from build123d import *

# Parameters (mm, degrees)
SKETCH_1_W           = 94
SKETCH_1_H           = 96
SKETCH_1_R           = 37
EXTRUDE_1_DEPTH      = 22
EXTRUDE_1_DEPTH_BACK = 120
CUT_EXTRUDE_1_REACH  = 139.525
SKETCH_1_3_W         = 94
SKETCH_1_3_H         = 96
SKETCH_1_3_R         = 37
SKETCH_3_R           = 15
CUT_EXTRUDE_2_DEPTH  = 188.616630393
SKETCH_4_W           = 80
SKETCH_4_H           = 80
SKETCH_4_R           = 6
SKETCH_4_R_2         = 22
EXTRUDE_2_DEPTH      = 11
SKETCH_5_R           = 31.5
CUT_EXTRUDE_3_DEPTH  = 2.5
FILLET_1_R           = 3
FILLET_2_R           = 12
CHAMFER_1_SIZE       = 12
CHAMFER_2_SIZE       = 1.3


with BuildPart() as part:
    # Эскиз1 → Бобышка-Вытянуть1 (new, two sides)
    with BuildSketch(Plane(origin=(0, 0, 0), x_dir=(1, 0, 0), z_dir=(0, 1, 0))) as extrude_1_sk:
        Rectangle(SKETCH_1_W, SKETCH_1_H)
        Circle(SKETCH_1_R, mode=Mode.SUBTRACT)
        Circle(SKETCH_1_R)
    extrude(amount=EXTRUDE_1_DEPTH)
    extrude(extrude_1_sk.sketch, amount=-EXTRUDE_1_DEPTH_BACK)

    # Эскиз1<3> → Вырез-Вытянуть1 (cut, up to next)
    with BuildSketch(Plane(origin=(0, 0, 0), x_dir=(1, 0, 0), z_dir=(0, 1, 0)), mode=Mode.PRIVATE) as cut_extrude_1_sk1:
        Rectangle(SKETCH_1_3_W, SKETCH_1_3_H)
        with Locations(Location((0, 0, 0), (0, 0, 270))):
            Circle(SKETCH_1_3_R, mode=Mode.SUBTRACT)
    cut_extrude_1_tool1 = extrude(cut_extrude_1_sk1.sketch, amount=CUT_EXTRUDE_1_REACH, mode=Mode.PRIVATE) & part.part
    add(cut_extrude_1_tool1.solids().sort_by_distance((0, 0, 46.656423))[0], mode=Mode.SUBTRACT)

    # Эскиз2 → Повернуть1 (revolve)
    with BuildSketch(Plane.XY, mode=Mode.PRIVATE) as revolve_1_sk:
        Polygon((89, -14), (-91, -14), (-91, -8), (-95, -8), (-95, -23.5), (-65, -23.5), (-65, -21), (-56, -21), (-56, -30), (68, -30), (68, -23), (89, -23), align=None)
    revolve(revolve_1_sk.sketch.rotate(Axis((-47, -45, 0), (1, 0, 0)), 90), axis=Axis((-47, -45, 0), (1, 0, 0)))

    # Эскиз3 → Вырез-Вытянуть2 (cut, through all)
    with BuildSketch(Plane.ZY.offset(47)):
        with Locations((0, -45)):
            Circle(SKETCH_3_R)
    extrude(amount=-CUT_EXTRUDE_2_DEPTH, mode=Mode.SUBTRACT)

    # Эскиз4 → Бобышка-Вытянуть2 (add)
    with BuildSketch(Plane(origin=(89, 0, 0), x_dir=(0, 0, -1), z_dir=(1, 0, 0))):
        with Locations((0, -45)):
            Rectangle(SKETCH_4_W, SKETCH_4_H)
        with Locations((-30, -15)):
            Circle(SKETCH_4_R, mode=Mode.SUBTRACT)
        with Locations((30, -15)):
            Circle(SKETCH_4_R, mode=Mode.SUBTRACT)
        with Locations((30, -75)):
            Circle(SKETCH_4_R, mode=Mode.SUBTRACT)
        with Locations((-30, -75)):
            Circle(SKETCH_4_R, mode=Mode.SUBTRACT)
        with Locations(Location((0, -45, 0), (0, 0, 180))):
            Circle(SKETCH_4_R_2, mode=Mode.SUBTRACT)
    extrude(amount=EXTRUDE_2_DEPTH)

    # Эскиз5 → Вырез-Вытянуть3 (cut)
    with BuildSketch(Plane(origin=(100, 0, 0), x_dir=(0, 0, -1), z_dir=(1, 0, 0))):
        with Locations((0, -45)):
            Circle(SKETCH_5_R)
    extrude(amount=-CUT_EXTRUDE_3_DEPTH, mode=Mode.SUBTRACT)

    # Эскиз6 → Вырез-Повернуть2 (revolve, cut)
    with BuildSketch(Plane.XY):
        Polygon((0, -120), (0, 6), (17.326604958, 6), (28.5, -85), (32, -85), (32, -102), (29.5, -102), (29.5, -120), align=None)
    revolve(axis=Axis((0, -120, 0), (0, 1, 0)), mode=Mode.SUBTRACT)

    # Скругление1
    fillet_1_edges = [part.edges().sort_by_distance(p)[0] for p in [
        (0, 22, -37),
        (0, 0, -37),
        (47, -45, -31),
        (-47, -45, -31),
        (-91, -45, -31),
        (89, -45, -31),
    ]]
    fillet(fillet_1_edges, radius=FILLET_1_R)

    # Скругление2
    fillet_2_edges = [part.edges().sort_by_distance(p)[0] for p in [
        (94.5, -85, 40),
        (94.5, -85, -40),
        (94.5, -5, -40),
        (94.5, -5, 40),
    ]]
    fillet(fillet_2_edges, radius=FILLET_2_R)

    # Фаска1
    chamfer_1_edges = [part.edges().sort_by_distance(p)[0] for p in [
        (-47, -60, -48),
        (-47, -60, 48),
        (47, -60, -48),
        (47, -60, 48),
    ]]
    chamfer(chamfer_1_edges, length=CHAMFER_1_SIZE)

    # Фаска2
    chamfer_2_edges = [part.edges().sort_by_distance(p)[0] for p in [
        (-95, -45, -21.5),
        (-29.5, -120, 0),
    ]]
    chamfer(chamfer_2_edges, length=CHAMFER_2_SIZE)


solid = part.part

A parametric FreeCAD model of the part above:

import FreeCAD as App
import Part
import Sketcher
Q = App.Units.Quantity


def edges_at(feature, points):
    """Names of the edges that pass closest to the given points."""
    edges = feature.Shape.Edges
    near = lambda p: min(range(len(edges)), key=lambda i: edges[i].distToShape(Part.Vertex(*p))[0])
    return sorted({f"Edge{near(p) + 1}" for p in points})

doc = App.newDocument("Part")
params = doc.addObject("Spreadsheet::Sheet", "Params")
for row, (alias, value) in enumerate([
    ("sketch1_width", "94 mm"),
    ("sketch1_height", "96 mm"),
    ("pad1_length", "22 mm"),
    ("pad1_length2", "120 mm"),
    ("sketch2_diameter", "74 mm"),
    ("sketch2_width", "94 mm"),
    ("sketch2_height", "96 mm"),
    ("sketch3_width", "180 mm"),
    ("sketch3_width2", "4 mm"),
    ("sketch3_width3", "30 mm"),
    ("sketch3_width4", "9 mm"),
    ("sketch3_width5", "124 mm"),
    ("revolution_angle", "360 deg"),
    ("sketch4_diameter", "30 mm"),
    ("sketch5_diameter", "12 mm"),
    ("sketch5_diameter2", "44 mm"),
    ("sketch5_width", "80 mm"),
    ("pad2_length", "11 mm"),
    ("sketch6_diameter", "63 mm"),
    ("pocket3_length", "2.5 mm"),
    ("sketch7_height", "126 mm"),
    ("sketch7_height2", "18 mm"),
    ("sketch7_height3", "17 mm"),
    ("sketch7_width", "29.5 mm"),
    ("sketch7_width2", "2.5 mm"),
    ("groove_angle", "360 deg"),
    ("fillet_radius", "3 mm"),
    ("fillet2_radius", "12 mm"),
    ("chamfer_size", "12 mm"),
    ("chamfer2_size", "1.3 mm"),
], start=1):
    params.set(f"A{row}", alias)
    params.set(f"B{row}", "=" + value)
    params.setAlias(f"B{row}", alias)

body = doc.addObject("PartDesign::Body", "Body")

sketch1 = body.newObject("Sketcher::SketchObject", "Sketch")
sketch1.AttachmentSupport = (doc.getObject("XZ_Plane"), [""])
sketch1.MapMode = "FlatFace"
sketch1.addGeometry(Part.LineSegment(App.Vector(-47, -48, 0), App.Vector(-47, 48, 0)), False)
sketch1.addGeometry(Part.LineSegment(App.Vector(-47, 48, 0), App.Vector(47, 48, 0)), False)
sketch1.addGeometry(Part.LineSegment(App.Vector(47, 48, 0), App.Vector(47, -48, 0)), False)
sketch1.addGeometry(Part.LineSegment(App.Vector(47, -48, 0), App.Vector(-47, -48, 0)), False)
sketch1.addConstraint(Sketcher.Constraint("Coincident", 0, 2, 1, 1))
sketch1.addConstraint(Sketcher.Constraint("Coincident", 1, 2, 2, 1))
sketch1.addConstraint(Sketcher.Constraint("Coincident", 2, 2, 3, 1))
sketch1.addConstraint(Sketcher.Constraint("Coincident", 3, 2, 0, 1))
sketch1.addConstraint(Sketcher.Constraint("Vertical", 0))
sketch1.addConstraint(Sketcher.Constraint("Horizontal", 1))
sketch1.addConstraint(Sketcher.Constraint("Vertical", 2))
sketch1.addConstraint(Sketcher.Constraint("Horizontal", 3))
sketch1.addConstraint(Sketcher.Constraint("Symmetric", 0, 2, 2, 2, -1, 1))
sketch1.addConstraint(Sketcher.Constraint("DistanceX", 1, 1, 1, 2, 94.0))
sketch1.addConstraint(Sketcher.Constraint("DistanceY", 0, 1, 0, 2, 96.0))
sketch1.setExpression("Constraints[9]", "Params.sketch1_width")
sketch1.setExpression("Constraints[10]", "Params.sketch1_height")
pad1 = body.newObject("PartDesign::Pad", "Pad")
pad1.Profile = sketch1
pad1.Type = "TwoLengths"
pad1.setExpression("Length", "Params.pad1_length")
pad1.setExpression("Length2", "Params.pad1_length2")
pad1.Reversed = True

sketch2 = body.newObject("Sketcher::SketchObject", "Sketch001")
sketch2.AttachmentSupport = (doc.getObject("XZ_Plane"), [""])
sketch2.MapMode = "FlatFace"
sketch2.addGeometry(Part.LineSegment(App.Vector(-47, -48, 0), App.Vector(-47, 48, 0)), False)
sketch2.addGeometry(Part.LineSegment(App.Vector(-47, 48, 0), App.Vector(47, 48, 0)), False)
sketch2.addGeometry(Part.LineSegment(App.Vector(47, 48, 0), App.Vector(47, -48, 0)), False)
sketch2.addGeometry(Part.LineSegment(App.Vector(47, -48, 0), App.Vector(-47, -48, 0)), False)
sketch2.addGeometry(Part.Circle(App.Vector(0, 0, 0), App.Vector(0, 0, 1), 37), False)
sketch2.addConstraint(Sketcher.Constraint("Coincident", 0, 2, 1, 1))
sketch2.addConstraint(Sketcher.Constraint("Coincident", 1, 2, 2, 1))
sketch2.addConstraint(Sketcher.Constraint("Coincident", 2, 2, 3, 1))
sketch2.addConstraint(Sketcher.Constraint("Coincident", 3, 2, 0, 1))
sketch2.addConstraint(Sketcher.Constraint("Vertical", 0))
sketch2.addConstraint(Sketcher.Constraint("Horizontal", 1))
sketch2.addConstraint(Sketcher.Constraint("Vertical", 2))
sketch2.addConstraint(Sketcher.Constraint("Horizontal", 3))
sketch2.addConstraint(Sketcher.Constraint("Coincident", 4, 3, -1, 1))
sketch2.addConstraint(Sketcher.Constraint("Symmetric", 0, 2, 2, 2, -1, 1))
sketch2.addConstraint(Sketcher.Constraint("Diameter", 4, 74.0))
sketch2.addConstraint(Sketcher.Constraint("DistanceX", 1, 1, 1, 2, 94.0))
sketch2.addConstraint(Sketcher.Constraint("DistanceY", 0, 1, 0, 2, 96.0))
sketch2.setExpression("Constraints[10]", "Params.sketch2_diameter")
sketch2.setExpression("Constraints[11]", "Params.sketch2_width")
sketch2.setExpression("Constraints[12]", "Params.sketch2_height")
pocket1 = body.newObject("PartDesign::Pocket", "Pocket")
pocket1.Profile = sketch2
pocket1.Type = "UpToFirst"

sketch3 = body.newObject("Sketcher::SketchObject", "Sketch002")
sketch3.AttachmentSupport = (doc.getObject("XY_Plane"), [""])
sketch3.MapMode = "FlatFace"
sketch3.addGeometry(Part.LineSegment(App.Vector(89, -14, 0), App.Vector(-91, -14, 0)), False)
sketch3.addGeometry(Part.LineSegment(App.Vector(-91, -14, 0), App.Vector(-91, -8, 0)), False)
sketch3.addGeometry(Part.LineSegment(App.Vector(-91, -8, 0), App.Vector(-95, -8, 0)), False)
sketch3.addGeometry(Part.LineSegment(App.Vector(-95, -8, 0), App.Vector(-95, -23.5, 0)), False)
sketch3.addGeometry(Part.LineSegment(App.Vector(-95, -23.5, 0), App.Vector(-65, -23.5, 0)), False)
sketch3.addGeometry(Part.LineSegment(App.Vector(-65, -23.5, 0), App.Vector(-65, -21, 0)), False)
sketch3.addGeometry(Part.LineSegment(App.Vector(-65, -21, 0), App.Vector(-56, -21, 0)), False)
sketch3.addGeometry(Part.LineSegment(App.Vector(-56, -21, 0), App.Vector(-56, -30, 0)), False)
sketch3.addGeometry(Part.LineSegment(App.Vector(-56, -30, 0), App.Vector(68, -30, 0)), False)
sketch3.addGeometry(Part.LineSegment(App.Vector(68, -30, 0), App.Vector(68, -23, 0)), False)
sketch3.addGeometry(Part.LineSegment(App.Vector(68, -23, 0), App.Vector(89, -23, 0)), False)
sketch3.addGeometry(Part.LineSegment(App.Vector(89, -23, 0), App.Vector(89, -14, 0)), False)
sketch3.addGeometry(Part.LineSegment(App.Vector(-95, -45, 0), App.Vector(89, -45, 0)), True)
sketch3.addConstraint(Sketcher.Constraint("Coincident", 0, 2, 1, 1))
sketch3.addConstraint(Sketcher.Constraint("Coincident", 1, 2, 2, 1))
sketch3.addConstraint(Sketcher.Constraint("Coincident", 2, 2, 3, 1))
sketch3.addConstraint(Sketcher.Constraint("Coincident", 3, 2, 4, 1))
sketch3.addConstraint(Sketcher.Constraint("Coincident", 4, 2, 5, 1))
sketch3.addConstraint(Sketcher.Constraint("Coincident", 5, 2, 6, 1))
sketch3.addConstraint(Sketcher.Constraint("Coincident", 6, 2, 7, 1))
sketch3.addConstraint(Sketcher.Constraint("Coincident", 7, 2, 8, 1))
sketch3.addConstraint(Sketcher.Constraint("Coincident", 8, 2, 9, 1))
sketch3.addConstraint(Sketcher.Constraint("Coincident", 9, 2, 10, 1))
sketch3.addConstraint(Sketcher.Constraint("Coincident", 10, 2, 11, 1))
sketch3.addConstraint(Sketcher.Constraint("Coincident", 11, 2, 0, 1))
sketch3.addConstraint(Sketcher.Constraint("Horizontal", 0))
sketch3.addConstraint(Sketcher.Constraint("Vertical", 1))
sketch3.addConstraint(Sketcher.Constraint("Horizontal", 2))
sketch3.addConstraint(Sketcher.Constraint("Vertical", 3))
sketch3.addConstraint(Sketcher.Constraint("Horizontal", 4))
sketch3.addConstraint(Sketcher.Constraint("Vertical", 5))
sketch3.addConstraint(Sketcher.Constraint("Horizontal", 6))
sketch3.addConstraint(Sketcher.Constraint("Vertical", 7))
sketch3.addConstraint(Sketcher.Constraint("Horizontal", 8))
sketch3.addConstraint(Sketcher.Constraint("Vertical", 9))
sketch3.addConstraint(Sketcher.Constraint("Horizontal", 10))
sketch3.addConstraint(Sketcher.Constraint("Vertical", 11))
sketch3.addConstraint(Sketcher.Constraint("Horizontal", 12))
sketch3.addConstraint(Sketcher.Constraint("Vertical", 3, 2, 12, 1))
sketch3.addConstraint(Sketcher.Constraint("Vertical", 11, 2, 12, 2))
sketch3.addConstraint(Sketcher.Constraint("Equal", 6, 7))
sketch3.addConstraint(Sketcher.Constraint("Equal", 7, 11))
sketch3.addConstraint(Sketcher.Constraint("DistanceX", 0, 2, 0, 1, 180.0))
sketch3.addConstraint(Sketcher.Constraint("DistanceX", 2, 2, 2, 1, 4.0))
sketch3.addConstraint(Sketcher.Constraint("DistanceX", 4, 1, 4, 2, 30.0))
sketch3.addConstraint(Sketcher.Constraint("DistanceX", 6, 1, 6, 2, 9.0))
sketch3.addConstraint(Sketcher.Constraint("DistanceX", 8, 1, 8, 2, 124.0))
sketch3.addConstraint(Sketcher.Constraint("DistanceY", 1, 1, 1, 2, 6.0))
sketch3.addConstraint(Sketcher.Constraint("DistanceY", 9, 1, 9, 2, 7.0))
sketch3.addConstraint(Sketcher.Constraint("DistanceY", 3, 2, 3, 1, 15.5))
sketch3.addConstraint(Sketcher.Constraint("DistanceX", 0, 2, -1, 1, 91.0))
sketch3.addConstraint(Sketcher.Constraint("DistanceY", 0, 2, -1, 1, 14.0))
sketch3.addConstraint(Sketcher.Constraint("DistanceY", 12, 1, -1, 1, 45.0))
sketch3.setExpression("Constraints[29]", "Params.sketch3_width")
sketch3.setExpression("Constraints[30]", "Params.sketch3_width2")
sketch3.setExpression("Constraints[31]", "Params.sketch3_width3")
sketch3.setExpression("Constraints[32]", "Params.sketch3_width4")
sketch3.setExpression("Constraints[33]", "Params.sketch3_width5")
revolution = body.newObject("PartDesign::Revolution", "Revolution")
revolution.Profile = sketch3
revolution.ReferenceAxis = (sketch3, ["Axis0"])
revolution.setExpression("Angle", "Params.revolution_angle")

sketch4 = body.newObject("Sketcher::SketchObject", "Sketch003")
sketch4.AttachmentSupport = (doc.getObject("YZ_Plane"), [""])
sketch4.MapMode = "FlatFace"
sketch4.AttachmentOffset = App.Placement(App.Vector(0, 0, -47), App.Rotation())
sketch4.addGeometry(Part.Circle(App.Vector(-45, 0, 0), App.Vector(0, 0, 1), 15), False)
sketch4.addConstraint(Sketcher.Constraint("PointOnObject", 0, 3, -1))
sketch4.addConstraint(Sketcher.Constraint("Diameter", 0, 30.0))
sketch4.addConstraint(Sketcher.Constraint("DistanceX", 0, 3, -1, 1, 45.0))
sketch4.setExpression("Constraints[1]", "Params.sketch4_diameter")
pocket2 = body.newObject("PartDesign::Pocket", "Pocket001")
pocket2.Profile = sketch4
pocket2.Type = "ThroughAll"
pocket2.Reversed = True

sketch5 = body.newObject("Sketcher::SketchObject", "Sketch004")
sketch5.AttachmentSupport = (doc.getObject("YZ_Plane"), [""])
sketch5.MapMode = "FlatFace"
sketch5.AttachmentOffset = App.Placement(App.Vector(0, 0, 89), App.Rotation())
sketch5.addGeometry(Part.LineSegment(App.Vector(-5, 40, 0), App.Vector(-85, 40, 0)), False)
sketch5.addGeometry(Part.LineSegment(App.Vector(-85, 40, 0), App.Vector(-85, -40, 0)), False)
sketch5.addGeometry(Part.LineSegment(App.Vector(-85, -40, 0), App.Vector(-5, -40, 0)), False)
sketch5.addGeometry(Part.LineSegment(App.Vector(-5, -40, 0), App.Vector(-5, 40, 0)), False)
sketch5.addGeometry(Part.Circle(App.Vector(-75, 30, 0), App.Vector(0, 0, 1), 6), False)
sketch5.addGeometry(Part.Circle(App.Vector(-75, -30, 0), App.Vector(0, 0, 1), 6), False)
sketch5.addGeometry(Part.Circle(App.Vector(-15, 30, 0), App.Vector(0, 0, 1), 6), False)
sketch5.addGeometry(Part.Circle(App.Vector(-45, 0, 0), App.Vector(0, 0, 1), 22), False)
sketch5.addGeometry(Part.Circle(App.Vector(-15, -30, 0), App.Vector(0, 0, 1), 6), False)
sketch5.addConstraint(Sketcher.Constraint("Coincident", 0, 2, 1, 1))
sketch5.addConstraint(Sketcher.Constraint("Coincident", 1, 2, 2, 1))
sketch5.addConstraint(Sketcher.Constraint("Coincident", 2, 2, 3, 1))
sketch5.addConstraint(Sketcher.Constraint("Coincident", 3, 2, 0, 1))
sketch5.addConstraint(Sketcher.Constraint("Horizontal", 0))
sketch5.addConstraint(Sketcher.Constraint("Vertical", 1))
sketch5.addConstraint(Sketcher.Constraint("Horizontal", 2))
sketch5.addConstraint(Sketcher.Constraint("Vertical", 3))
sketch5.addConstraint(Sketcher.Constraint("Equal", 4, 5))
sketch5.addConstraint(Sketcher.Constraint("Equal", 5, 6))
sketch5.addConstraint(Sketcher.Constraint("Equal", 6, 8))
sketch5.addConstraint(Sketcher.Constraint("Symmetric", 4, 3, 5, 3, -1))
sketch5.addConstraint(Sketcher.Constraint("Symmetric", 6, 3, 8, 3, -1))
sketch5.addConstraint(Sketcher.Constraint("PointOnObject", 7, 3, -1))
sketch5.addConstraint(Sketcher.Constraint("Horizontal", 4, 3, 6, 3))
sketch5.addConstraint(Sketcher.Constraint("Equal", 2, 1))
sketch5.addConstraint(Sketcher.Constraint("Diameter", 4, 12.0))
sketch5.addConstraint(Sketcher.Constraint("Diameter", 7, 44.0))
sketch5.addConstraint(Sketcher.Constraint("DistanceX", 0, 2, 0, 1, 80.0))
sketch5.addConstraint(Sketcher.Constraint("DistanceX", 4, 3, -1, 1, 75.0))
sketch5.addConstraint(Sketcher.Constraint("DistanceY", -1, 1, 4, 3, 30.0))
sketch5.addConstraint(Sketcher.Constraint("DistanceX", 6, 3, -1, 1, 15.0))
sketch5.addConstraint(Sketcher.Constraint("DistanceX", 7, 3, -1, 1, 45.0))
sketch5.addConstraint(Sketcher.Constraint("DistanceX", 0, 2, -1, 1, 85.0))
sketch5.addConstraint(Sketcher.Constraint("DistanceY", -1, 1, 0, 2, 40.0))
sketch5.setExpression("Constraints[16]", "Params.sketch5_diameter")
sketch5.setExpression("Constraints[17]", "Params.sketch5_diameter2")
sketch5.setExpression("Constraints[18]", "Params.sketch5_width")
pad2 = body.newObject("PartDesign::Pad", "Pad001")
pad2.Profile = sketch5
pad2.setExpression("Length", "Params.pad2_length")

sketch6 = body.newObject("Sketcher::SketchObject", "Sketch005")
sketch6.AttachmentSupport = (doc.getObject("YZ_Plane"), [""])
sketch6.MapMode = "FlatFace"
sketch6.AttachmentOffset = App.Placement(App.Vector(0, 0, 100), App.Rotation())
sketch6.addGeometry(Part.Circle(App.Vector(-45, 0, 0), App.Vector(0, 0, 1), 32), False)
sketch6.addConstraint(Sketcher.Constraint("PointOnObject", 0, 3, -1))
sketch6.addConstraint(Sketcher.Constraint("Diameter", 0, 63.0))
sketch6.addConstraint(Sketcher.Constraint("DistanceX", 0, 3, -1, 1, 45.0))
sketch6.setExpression("Constraints[1]", "Params.sketch6_diameter")
pocket3 = body.newObject("PartDesign::Pocket", "Pocket002")
pocket3.Profile = sketch6
pocket3.setExpression("Length", "Params.pocket3_length")

sketch7 = body.newObject("Sketcher::SketchObject", "Sketch006")
sketch7.AttachmentSupport = (doc.getObject("XY_Plane"), [""])
sketch7.MapMode = "FlatFace"
sketch7.addGeometry(Part.LineSegment(App.Vector(0, 6, 0), App.Vector(0, -120, 0)), False)
sketch7.addGeometry(Part.LineSegment(App.Vector(0, -120, 0), App.Vector(29.5, -120, 0)), False)
sketch7.addGeometry(Part.LineSegment(App.Vector(29.5, -120, 0), App.Vector(29.5, -102, 0)), False)
sketch7.addGeometry(Part.LineSegment(App.Vector(29.5, -102, 0), App.Vector(32, -102, 0)), False)
sketch7.addGeometry(Part.LineSegment(App.Vector(32, -102, 0), App.Vector(32, -85, 0)), False)
sketch7.addGeometry(Part.LineSegment(App.Vector(32, -85, 0), App.Vector(28.5, -85, 0)), False)
sketch7.addGeometry(Part.LineSegment(App.Vector(28.5, -85, 0), App.Vector(17.3, 6, 0)), False)
sketch7.addGeometry(Part.LineSegment(App.Vector(17.3, 6, 0), App.Vector(0, 6, 0)), False)
sketch7.addConstraint(Sketcher.Constraint("Coincident", 0, 2, 1, 1))
sketch7.addConstraint(Sketcher.Constraint("Coincident", 1, 2, 2, 1))
sketch7.addConstraint(Sketcher.Constraint("Coincident", 2, 2, 3, 1))
sketch7.addConstraint(Sketcher.Constraint("Coincident", 3, 2, 4, 1))
sketch7.addConstraint(Sketcher.Constraint("Coincident", 4, 2, 5, 1))
sketch7.addConstraint(Sketcher.Constraint("Coincident", 5, 2, 6, 1))
sketch7.addConstraint(Sketcher.Constraint("Coincident", 6, 2, 7, 1))
sketch7.addConstraint(Sketcher.Constraint("Coincident", 7, 2, 0, 1))
sketch7.addConstraint(Sketcher.Constraint("Vertical", 0))
sketch7.addConstraint(Sketcher.Constraint("Horizontal", 1))
sketch7.addConstraint(Sketcher.Constraint("Vertical", 2))
sketch7.addConstraint(Sketcher.Constraint("Horizontal", 3))
sketch7.addConstraint(Sketcher.Constraint("Vertical", 4))
sketch7.addConstraint(Sketcher.Constraint("Horizontal", 5))
sketch7.addConstraint(Sketcher.Constraint("Horizontal", 7))
sketch7.addConstraint(Sketcher.Constraint("PointOnObject", 0, 2, -2))
sketch7.addConstraint(Sketcher.Constraint("DistanceY", 0, 2, 0, 1, 126.0))
sketch7.addConstraint(Sketcher.Constraint("DistanceY", 2, 1, 2, 2, 18.0))
sketch7.addConstraint(Sketcher.Constraint("DistanceY", 4, 1, 4, 2, 17.0))
sketch7.addConstraint(Sketcher.Constraint("Angle", 6, Q("97 deg")))
sketch7.addConstraint(Sketcher.Constraint("DistanceX", 1, 1, 1, 2, 29.5))
sketch7.addConstraint(Sketcher.Constraint("DistanceX", 3, 1, 3, 2, 2.5))
sketch7.addConstraint(Sketcher.Constraint("DistanceX", 5, 2, 5, 1, 3.5))
sketch7.addConstraint(Sketcher.Constraint("DistanceY", 0, 2, -1, 1, 120.0))
sketch7.setExpression("Constraints[16]", "Params.sketch7_height")
sketch7.setExpression("Constraints[17]", "Params.sketch7_height2")
sketch7.setExpression("Constraints[18]", "Params.sketch7_height3")
sketch7.setExpression("Constraints[20]", "Params.sketch7_width")
sketch7.setExpression("Constraints[21]", "Params.sketch7_width2")
groove = body.newObject("PartDesign::Groove", "Groove")
groove.Profile = sketch7
groove.ReferenceAxis = (sketch7, ["V_Axis"])
groove.setExpression("Angle", "Params.groove_angle")
doc.recompute()

fillet = body.newObject("PartDesign::Fillet", "Fillet")
fillet.Base = (groove, edges_at(groove, [
    (0, 22, -37),
    (0, 0, -37),
    (47, -45, -31),
    (-47, -45, -31),
    (-91, -45, -31),
    (89, -45, -31),
]))
fillet.setExpression("Radius", "Params.fillet_radius")
doc.recompute()

fillet2 = body.newObject("PartDesign::Fillet", "Fillet001")
fillet2.Base = (fillet, edges_at(fillet, [
    (94.5, -85, 40),
    (94.5, -85, -40),
    (94.5, -5, -40),
    (94.5, -5, 40),
]))
fillet2.setExpression("Radius", "Params.fillet2_radius")
doc.recompute()

chamfer = body.newObject("PartDesign::Chamfer", "Chamfer")
chamfer.Base = (fillet2, edges_at(fillet2, [
    (-47, -60, -48),
    (-47, -60, 48),
    (47, -60, -48),
    (47, -60, 48),
]))
chamfer.setExpression("Size", "Params.chamfer_size")
doc.recompute()

chamfer2 = body.newObject("PartDesign::Chamfer", "Chamfer001")
chamfer2.Base = (chamfer, edges_at(chamfer, [(-95, -45, -21.5), (-29.5, -120, 0)]))
chamfer2.setExpression("Size", "Params.chamfer2_size")

doc.recompute()
